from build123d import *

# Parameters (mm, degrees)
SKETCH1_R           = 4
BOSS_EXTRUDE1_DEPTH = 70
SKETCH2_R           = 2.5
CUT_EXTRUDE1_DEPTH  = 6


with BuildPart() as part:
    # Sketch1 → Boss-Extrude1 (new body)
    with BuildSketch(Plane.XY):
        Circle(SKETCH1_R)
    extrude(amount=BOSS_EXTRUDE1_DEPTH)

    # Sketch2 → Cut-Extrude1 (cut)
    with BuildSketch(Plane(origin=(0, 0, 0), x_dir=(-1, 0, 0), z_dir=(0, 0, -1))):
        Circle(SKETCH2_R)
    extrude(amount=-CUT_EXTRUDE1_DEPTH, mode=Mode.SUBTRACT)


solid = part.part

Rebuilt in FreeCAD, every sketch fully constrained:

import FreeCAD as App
import Part
import Sketcher

V = App.Vector
Q = App.Units.Quantity

doc = App.newDocument("Part")
body = doc.addObject("PartDesign::Body", "Body")

sketch1 = body.newObject("Sketcher::SketchObject", "Sketch")
sketch1.AttachmentSupport = (doc.getObject("XY_Plane"), [""])
sketch1.MapMode = "FlatFace"
sketch1.addGeometry(Part.Circle(V(0, 0, 0), V(0, 0, 1), 4), False)
sketch1.addConstraint([
    Sketcher.Constraint("Coincident", 0, 3, -1, 1),
    Sketcher.Constraint("Diameter", 0, Q("8 mm")),
])
pad1 = body.newObject("PartDesign::Pad", "Pad")
pad1.Profile = sketch1
pad1.Length = 70

sketch2 = body.newObject("Sketcher::SketchObject", "Sketch001")
sketch2.AttachmentSupport = (doc.getObject("XY_Plane"), [""])
sketch2.MapMode = "FlatFace"
sketch2.addGeometry(Part.Circle(V(0, 0, 0), V(0, 0, 1), 2.5), False)
sketch2.addConstraint([
    Sketcher.Constraint("Coincident", 0, 3, -1, 1),
    Sketcher.Constraint("Diameter", 0, Q("5 mm")),
])
pocket1 = body.newObject("PartDesign::Pocket", "Pocket")
pocket1.Profile = sketch2
pocket1.Length = 6
pocket1.Reversed = True

doc.recompute()
